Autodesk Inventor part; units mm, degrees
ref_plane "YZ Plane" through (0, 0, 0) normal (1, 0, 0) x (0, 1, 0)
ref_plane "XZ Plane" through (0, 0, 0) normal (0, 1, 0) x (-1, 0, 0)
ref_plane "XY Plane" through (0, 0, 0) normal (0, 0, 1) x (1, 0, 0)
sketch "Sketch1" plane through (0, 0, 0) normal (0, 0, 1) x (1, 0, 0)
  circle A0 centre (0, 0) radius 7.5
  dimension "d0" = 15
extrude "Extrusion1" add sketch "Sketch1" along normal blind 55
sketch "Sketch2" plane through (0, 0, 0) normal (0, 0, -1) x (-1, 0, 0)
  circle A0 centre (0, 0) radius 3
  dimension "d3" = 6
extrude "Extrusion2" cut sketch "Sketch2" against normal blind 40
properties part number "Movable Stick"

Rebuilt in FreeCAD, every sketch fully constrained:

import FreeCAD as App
import Part
import Sketcher

doc = App.newDocument("Part")
body = doc.addObject("PartDesign::Body", "Body")

# Sketch on XY plane
sketch1 = body.newObject("Sketcher::SketchObject", "Sketch")
sketch1.AttachmentSupport = (doc.getObject("XY_Plane"), [""])
sketch1.MapMode = "FlatFace"
sketch1.addGeometry(Part.Circle(App.Vector(0, 0, 0), App.Vector(0, 0, 1), 8), False)
sketch1.addConstraint(Sketcher.Constraint("Coincident", 0, 3, -1, 1))
sketch1.addConstraint(Sketcher.Constraint("Diameter", 0, 15.0))
pad1 = body.newObject("PartDesign::Pad", "Pad")
pad1.Profile = sketch1
pad1.Length = 55

# Sketch on XY plane
sketch2 = body.newObject("Sketcher::SketchObject", "Sketch001")
sketch2.AttachmentSupport = (doc.getObject("XY_Plane"), [""])
sketch2.MapMode = "FlatFace"
sketch2.addGeometry(Part.Circle(App.Vector(0, 0, 0), App.Vector(0, 0, 1), 3), False)
sketch2.addConstraint(Sketcher.Constraint("Coincident", 0, 3, -1, 1))
sketch2.addConstraint(Sketcher.Constraint("Diameter", 0, 6.0))
pocket1 = body.newObject("PartDesign::Pocket", "Pocket")
pocket1.Profile = sketch2
pocket1.Length = 40
pocket1.Reversed = True

doc.recompute()
